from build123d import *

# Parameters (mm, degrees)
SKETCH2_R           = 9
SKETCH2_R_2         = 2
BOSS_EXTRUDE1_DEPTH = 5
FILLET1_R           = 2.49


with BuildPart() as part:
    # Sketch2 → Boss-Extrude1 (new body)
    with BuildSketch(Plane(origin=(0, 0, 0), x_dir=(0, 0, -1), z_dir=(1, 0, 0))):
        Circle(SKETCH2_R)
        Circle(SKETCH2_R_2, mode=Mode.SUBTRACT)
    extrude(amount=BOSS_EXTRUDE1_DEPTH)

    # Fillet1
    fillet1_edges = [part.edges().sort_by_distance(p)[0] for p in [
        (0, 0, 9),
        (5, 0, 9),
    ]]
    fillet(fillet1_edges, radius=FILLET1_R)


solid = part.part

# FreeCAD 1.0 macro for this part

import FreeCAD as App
import Part
import Sketcher
from FreeCAD import Vector
Q = App.Units.Quantity


def edges_at(feature, points):
    """Names of the edges that pass closest to the given points."""
    edges = feature.Shape.Edges
    near = lambda p: min(range(len(edges)), key=lambda i: edges[i].distToShape(Part.Vertex(*p))[0])
    return sorted({f"Edge{near(p) + 1}" for p in points})

doc = App.newDocument("Part")
params = doc.addObject("Spreadsheet::Sheet", "Params")
for row, (alias, value) in enumerate([
    ("sketch1_diameter", "18 mm"),
    ("sketch1_diameter2", "4 mm"),
    ("pad1_length", "5 mm"),
    ("fillet_radius", "2.49 mm"),
], start=1):
    params.set(f"A{row}", alias)
    params.set(f"B{row}", "=" + value)
    params.setAlias(f"B{row}", alias)

body = doc.addObject("PartDesign::Body", "Body")

# Sketch on YZ plane
sketch1 = body.newObject("Sketcher::SketchObject", "Sketch")
sketch1.AttachmentSupport = (doc.getObject("YZ_Plane"), [""])
sketch1.MapMode = "FlatFace"
sketch1.addGeometry([
    Part.Circle(Vector(0, 0, 0), Vector(0, 0, 1), 9),
    Part.Circle(Vector(0, 0, 0), Vector(0, 0, 1), 2),
], False)
sketch1.addConstraint([
    Sketcher.Constraint("Coincident", 0, 3, -1, 1),
    Sketcher.Constraint("Coincident", 1, 3, -1, 1),
    Sketcher.Constraint("Diameter", 0, Q("18 mm")),
    Sketcher.Constraint("Diameter", 1, Q("4 mm")),
])
sketch1.setExpression("Constraints[2]", "Params.sketch1_diameter")
sketch1.setExpression("Constraints[3]", "Params.sketch1_diameter2")
pad1 = body.newObject("PartDesign::Pad", "Pad")
pad1.Profile = sketch1
pad1.setExpression("Length", "Params.pad1_length")
doc.recompute()

fillet = body.newObject("PartDesign::Fillet", "Fillet")
fillet.Base = (pad1, edges_at(pad1, [(0, 0, 9), (5, 0, 9)]))
fillet.setExpression("Radius", "Params.fillet_radius")

doc.recompute()
